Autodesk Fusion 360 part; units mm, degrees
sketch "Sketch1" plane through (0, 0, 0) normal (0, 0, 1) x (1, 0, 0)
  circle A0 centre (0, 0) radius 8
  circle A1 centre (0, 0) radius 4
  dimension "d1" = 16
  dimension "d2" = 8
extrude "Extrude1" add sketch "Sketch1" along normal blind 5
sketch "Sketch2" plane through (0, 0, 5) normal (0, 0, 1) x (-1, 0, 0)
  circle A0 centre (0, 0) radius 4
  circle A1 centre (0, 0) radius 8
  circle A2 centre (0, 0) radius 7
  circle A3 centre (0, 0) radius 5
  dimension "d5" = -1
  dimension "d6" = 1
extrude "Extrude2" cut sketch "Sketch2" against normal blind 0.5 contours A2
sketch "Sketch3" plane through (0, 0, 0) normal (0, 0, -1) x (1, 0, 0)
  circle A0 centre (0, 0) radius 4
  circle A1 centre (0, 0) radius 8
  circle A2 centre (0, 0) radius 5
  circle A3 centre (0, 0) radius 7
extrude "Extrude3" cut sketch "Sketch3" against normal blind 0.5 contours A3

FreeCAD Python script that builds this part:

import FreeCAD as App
import Part
import Sketcher
from FreeCAD import Vector

doc = App.newDocument("Part")
body = doc.addObject("PartDesign::Body", "Body")

# Sketch on XY plane
sketch1 = body.newObject("Sketcher::SketchObject", "Sketch")
sketch1.AttachmentSupport = (doc.getObject("XY_Plane"), [""])
sketch1.MapMode = "FlatFace"
sketch1.addGeometry(Part.Circle(Vector(0, 0, 0), Vector(0, 0, 1), 8), False)
sketch1.addGeometry(Part.Circle(Vector(0, 0, 0), Vector(0, 0, 1), 4), False)
sketch1.addConstraint(Sketcher.Constraint("Coincident", 0, 3, -1, 1))
sketch1.addConstraint(Sketcher.Constraint("Coincident", 1, 3, -1, 1))
sketch1.addConstraint(Sketcher.Constraint("Diameter", 0, 16.0))
sketch1.addConstraint(Sketcher.Constraint("Diameter", 1, 8.0))
pad1 = body.newObject("PartDesign::Pad", "Pad")
pad1.Profile = sketch1
pad1.Length = 5

# Sketch on XY plane
sketch2 = body.newObject("Sketcher::SketchObject", "Sketch001")
sketch2.AttachmentSupport = (doc.getObject("XY_Plane"), [""])
sketch2.MapMode = "FlatFace"
sketch2.AttachmentOffset = App.Placement(Vector(0, 0, 5), App.Rotation())
sketch2.addGeometry(Part.Circle(Vector(0, 0, 0), Vector(0, 0, 1), 7), False)
sketch2.addGeometry(Part.Circle(Vector(0, 0, 0), Vector(0, 0, 1), 5), False)
sketch2.addConstraint(Sketcher.Constraint("Coincident", 0, 3, -1, 1))
sketch2.addConstraint(Sketcher.Constraint("Coincident", 1, 3, -1, 1))
sketch2.addConstraint(Sketcher.Constraint("Diameter", 0, 14.0))
sketch2.addConstraint(Sketcher.Constraint("Diameter", 1, 10.0))
pocket1 = body.newObject("PartDesign::Pocket", "Pocket")
pocket1.Profile = sketch2
pocket1.Length = 0.5

# Sketch on XY plane
sketch3 = body.newObject("Sketcher::SketchObject", "Sketch002")
sketch3.AttachmentSupport = (doc.getObject("XY_Plane"), [""])
sketch3.MapMode = "FlatFace"
sketch3.addGeometry(Part.Circle(Vector(0, 0, 0), Vector(0, 0, 1), 7), False)
sketch3.addGeometry(Part.Circle(Vector(0, 0, 0), Vector(0, 0, 1), 5), False)
sketch3.addConstraint(Sketcher.Constraint("Coincident", 0, 3, -1, 1))
sketch3.addConstraint(Sketcher.Constraint("Coincident", 1, 3, -1, 1))
sketch3.addConstraint(Sketcher.Constraint("Diameter", 0, 14.0))
sketch3.addConstraint(Sketcher.Constraint("Diameter", 1, 10.0))
pocket2 = body.newObject("PartDesign::Pocket", "Pocket001")
pocket2.Profile = sketch3
pocket2.Length = 0.5
pocket2.Reversed = True

doc.recompute()
